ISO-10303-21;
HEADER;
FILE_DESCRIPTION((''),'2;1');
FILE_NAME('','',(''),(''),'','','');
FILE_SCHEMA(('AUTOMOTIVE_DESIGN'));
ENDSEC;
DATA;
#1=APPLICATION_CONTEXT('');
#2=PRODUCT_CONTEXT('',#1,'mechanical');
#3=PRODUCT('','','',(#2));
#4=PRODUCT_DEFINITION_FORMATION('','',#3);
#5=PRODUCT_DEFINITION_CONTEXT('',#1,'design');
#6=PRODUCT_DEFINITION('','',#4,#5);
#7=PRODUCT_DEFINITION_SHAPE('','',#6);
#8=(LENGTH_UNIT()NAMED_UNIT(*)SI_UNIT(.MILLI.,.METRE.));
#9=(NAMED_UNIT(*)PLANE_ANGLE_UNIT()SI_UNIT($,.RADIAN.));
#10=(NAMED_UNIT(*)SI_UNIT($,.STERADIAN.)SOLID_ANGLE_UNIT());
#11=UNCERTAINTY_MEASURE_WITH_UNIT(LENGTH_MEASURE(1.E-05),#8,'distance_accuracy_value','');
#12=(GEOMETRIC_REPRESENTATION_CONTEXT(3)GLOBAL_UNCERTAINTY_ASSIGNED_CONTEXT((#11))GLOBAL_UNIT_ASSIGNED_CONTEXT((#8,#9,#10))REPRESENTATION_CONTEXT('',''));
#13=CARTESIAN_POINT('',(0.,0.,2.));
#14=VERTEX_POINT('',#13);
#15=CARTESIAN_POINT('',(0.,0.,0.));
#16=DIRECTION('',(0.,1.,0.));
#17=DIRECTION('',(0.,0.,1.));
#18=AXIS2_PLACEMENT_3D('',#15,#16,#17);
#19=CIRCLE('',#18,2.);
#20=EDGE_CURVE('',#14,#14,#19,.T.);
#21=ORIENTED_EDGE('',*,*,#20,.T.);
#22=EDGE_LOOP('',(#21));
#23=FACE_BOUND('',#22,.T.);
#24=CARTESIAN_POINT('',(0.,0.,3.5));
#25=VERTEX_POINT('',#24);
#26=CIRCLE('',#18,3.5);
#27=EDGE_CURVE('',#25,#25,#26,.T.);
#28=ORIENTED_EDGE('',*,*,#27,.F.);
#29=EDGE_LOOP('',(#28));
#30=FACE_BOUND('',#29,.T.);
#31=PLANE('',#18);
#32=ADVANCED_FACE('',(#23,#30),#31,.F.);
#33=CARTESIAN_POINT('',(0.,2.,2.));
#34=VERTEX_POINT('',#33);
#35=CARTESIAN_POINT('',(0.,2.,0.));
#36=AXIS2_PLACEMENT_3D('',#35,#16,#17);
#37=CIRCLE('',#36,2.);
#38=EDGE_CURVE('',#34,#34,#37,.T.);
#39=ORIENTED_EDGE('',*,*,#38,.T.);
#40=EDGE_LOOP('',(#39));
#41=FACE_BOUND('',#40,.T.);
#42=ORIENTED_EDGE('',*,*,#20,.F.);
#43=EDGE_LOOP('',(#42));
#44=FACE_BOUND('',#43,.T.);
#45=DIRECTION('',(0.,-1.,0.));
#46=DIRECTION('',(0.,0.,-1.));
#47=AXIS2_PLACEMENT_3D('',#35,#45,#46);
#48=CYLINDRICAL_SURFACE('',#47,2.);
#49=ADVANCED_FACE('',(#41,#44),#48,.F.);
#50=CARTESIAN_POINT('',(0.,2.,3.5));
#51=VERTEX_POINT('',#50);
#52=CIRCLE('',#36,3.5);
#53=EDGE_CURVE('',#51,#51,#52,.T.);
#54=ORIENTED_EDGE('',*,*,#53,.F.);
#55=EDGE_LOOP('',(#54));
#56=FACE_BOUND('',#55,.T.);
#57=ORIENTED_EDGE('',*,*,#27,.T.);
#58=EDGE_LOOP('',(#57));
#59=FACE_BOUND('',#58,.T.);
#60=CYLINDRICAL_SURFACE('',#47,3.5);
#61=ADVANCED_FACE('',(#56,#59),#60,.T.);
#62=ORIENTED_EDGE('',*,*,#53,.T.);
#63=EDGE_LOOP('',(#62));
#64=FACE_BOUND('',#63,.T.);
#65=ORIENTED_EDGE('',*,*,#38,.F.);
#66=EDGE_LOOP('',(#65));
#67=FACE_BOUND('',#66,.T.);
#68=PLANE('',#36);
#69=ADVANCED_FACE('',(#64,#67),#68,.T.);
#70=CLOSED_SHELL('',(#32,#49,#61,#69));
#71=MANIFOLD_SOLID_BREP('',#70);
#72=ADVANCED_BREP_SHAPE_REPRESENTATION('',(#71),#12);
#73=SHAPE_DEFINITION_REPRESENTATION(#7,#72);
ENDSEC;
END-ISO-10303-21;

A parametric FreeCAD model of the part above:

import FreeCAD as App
import Part
import Sketcher
from FreeCAD import Vector
Q = App.Units.Quantity

doc = App.newDocument("Part")
params = doc.addObject("Spreadsheet::Sheet", "Params")
for row, (alias, value) in enumerate([
    ("sketch1_diameter", "7 mm"),
    ("sketch1_diameter2", "4 mm"),
    ("pad1_length", "2 mm"),
], start=1):
    params.set(f"A{row}", alias)
    params.set(f"B{row}", "=" + value)
    params.setAlias(f"B{row}", alias)

body = doc.addObject("PartDesign::Body", "Body")

# Sketch on XZ plane
sketch1 = body.newObject("Sketcher::SketchObject", "Sketch")
sketch1.AttachmentSupport = (doc.getObject("XZ_Plane"), [""])
sketch1.MapMode = "FlatFace"
sketch1.addGeometry(Part.Circle(Vector(0, 0, 0), Vector(0, 0, 1), 3.5), False)
sketch1.addGeometry(Part.Circle(Vector(0, 0, 0), Vector(0, 0, 1), 2), False)
sketch1.addConstraint(Sketcher.Constraint("Coincident", 0, 3, -1, 1))
sketch1.addConstraint(Sketcher.Constraint("Coincident", 1, 3, -1, 1))
sketch1.addConstraint(Sketcher.Constraint("Diameter", 0, Q("7 mm")))
sketch1.addConstraint(Sketcher.Constraint("Diameter", 1, Q("4 mm")))
sketch1.setExpression("Constraints[2]", "Params.sketch1_diameter")
sketch1.setExpression("Constraints[3]", "Params.sketch1_diameter2")
pad1 = body.newObject("PartDesign::Pad", "Pad")
pad1.Profile = sketch1
pad1.setExpression("Length", "Params.pad1_length")
pad1.Reversed = True

doc.recompute()
